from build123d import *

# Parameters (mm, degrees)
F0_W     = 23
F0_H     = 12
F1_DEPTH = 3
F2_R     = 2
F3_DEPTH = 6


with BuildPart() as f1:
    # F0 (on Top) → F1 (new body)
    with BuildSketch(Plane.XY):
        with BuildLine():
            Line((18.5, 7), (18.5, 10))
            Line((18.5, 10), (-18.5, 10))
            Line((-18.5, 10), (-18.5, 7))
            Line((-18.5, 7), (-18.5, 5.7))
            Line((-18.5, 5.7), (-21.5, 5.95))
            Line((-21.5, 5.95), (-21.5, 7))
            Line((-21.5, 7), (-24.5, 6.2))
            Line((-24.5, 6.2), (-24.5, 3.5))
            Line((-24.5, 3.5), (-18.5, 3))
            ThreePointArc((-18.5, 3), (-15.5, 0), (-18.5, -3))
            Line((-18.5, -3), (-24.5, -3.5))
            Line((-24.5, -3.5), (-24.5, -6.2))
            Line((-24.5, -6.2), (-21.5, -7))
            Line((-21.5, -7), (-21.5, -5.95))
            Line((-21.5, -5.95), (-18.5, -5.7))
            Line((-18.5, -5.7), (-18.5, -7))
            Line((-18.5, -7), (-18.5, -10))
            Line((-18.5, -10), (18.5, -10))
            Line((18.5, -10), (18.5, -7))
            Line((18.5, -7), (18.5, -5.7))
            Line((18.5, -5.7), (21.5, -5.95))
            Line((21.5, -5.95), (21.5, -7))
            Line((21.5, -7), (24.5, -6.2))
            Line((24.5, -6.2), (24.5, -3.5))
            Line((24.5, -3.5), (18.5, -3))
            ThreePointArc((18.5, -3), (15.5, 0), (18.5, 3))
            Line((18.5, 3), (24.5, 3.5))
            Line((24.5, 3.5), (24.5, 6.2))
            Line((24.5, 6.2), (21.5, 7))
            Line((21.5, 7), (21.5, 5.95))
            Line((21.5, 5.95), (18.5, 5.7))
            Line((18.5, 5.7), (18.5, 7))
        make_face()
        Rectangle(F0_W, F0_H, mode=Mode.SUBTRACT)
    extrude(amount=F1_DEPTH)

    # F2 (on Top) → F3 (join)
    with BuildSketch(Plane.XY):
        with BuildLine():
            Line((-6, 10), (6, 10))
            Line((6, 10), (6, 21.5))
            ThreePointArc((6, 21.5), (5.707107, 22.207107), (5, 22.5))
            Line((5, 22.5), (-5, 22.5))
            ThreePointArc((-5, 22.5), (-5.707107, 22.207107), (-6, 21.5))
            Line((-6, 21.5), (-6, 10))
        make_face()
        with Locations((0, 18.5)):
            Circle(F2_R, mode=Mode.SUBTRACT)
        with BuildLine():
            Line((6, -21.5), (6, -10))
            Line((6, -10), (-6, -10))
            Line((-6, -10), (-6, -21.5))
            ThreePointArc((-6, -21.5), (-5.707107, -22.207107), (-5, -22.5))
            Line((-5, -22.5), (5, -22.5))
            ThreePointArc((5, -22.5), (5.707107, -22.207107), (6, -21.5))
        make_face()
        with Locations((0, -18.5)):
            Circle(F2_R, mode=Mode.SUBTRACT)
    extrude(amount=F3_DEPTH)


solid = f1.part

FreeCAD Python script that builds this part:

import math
import FreeCAD as App
import Part
import Sketcher

doc = App.newDocument("Part")
body = doc.addObject("PartDesign::Body", "Body")

# Sketch on XY plane
sketch1 = body.newObject("Sketcher::SketchObject", "Sketch")
sketch1.AttachmentSupport = (doc.getObject("XY_Plane"), [""])
sketch1.MapMode = "FlatFace"
sketch1.addGeometry(Part.LineSegment(App.Vector(18.5, 10, 0), App.Vector(-18.5, 10, 0)), False)
sketch1.addGeometry(Part.LineSegment(App.Vector(-18.5, 10, 0), App.Vector(-18.5, 5.7, 0)), False)
sketch1.addGeometry(Part.LineSegment(App.Vector(-18.5, 5.7, 0), App.Vector(-21.5, 6, 0)), False)
sketch1.addGeometry(Part.LineSegment(App.Vector(-21.5, 6, 0), App.Vector(-21.5, 7, 0)), False)
sketch1.addGeometry(Part.LineSegment(App.Vector(-21.5, 7, 0), App.Vector(-24.5, 6.2, 0)), False)
sketch1.addGeometry(Part.LineSegment(App.Vector(-24.5, 6.2, 0), App.Vector(-24.5, 3.5, 0)), False)
sketch1.addGeometry(Part.LineSegment(App.Vector(-24.5, 3.5, 0), App.Vector(-18.5, 3, 0)), False)
sketch1.addGeometry(Part.ArcOfCircle(Part.Circle(App.Vector(-18.5, 0, 0), App.Vector(0, 0, 1), 3), math.radians(-90), math.radians(90)), False)
sketch1.addGeometry(Part.LineSegment(App.Vector(-18.5, -3, 0), App.Vector(-24.5, -3.5, 0)), False)
sketch1.addGeometry(Part.LineSegment(App.Vector(-24.5, -3.5, 0), App.Vector(-24.5, -6.2, 0)), False)
sketch1.addGeometry(Part.LineSegment(App.Vector(-24.5, -6.2, 0), App.Vector(-21.5, -7, 0)), False)
sketch1.addGeometry(Part.LineSegment(App.Vector(-21.5, -7, 0), App.Vector(-21.5, -6, 0)), False)
sketch1.addGeometry(Part.LineSegment(App.Vector(-21.5, -6, 0), App.Vector(-18.5, -5.7, 0)), False)
sketch1.addGeometry(Part.LineSegment(App.Vector(-18.5, -5.7, 0), App.Vector(-18.5, -10, 0)), False)
sketch1.addGeometry(Part.LineSegment(App.Vector(-18.5, -10, 0), App.Vector(18.5, -10, 0)), False)
sketch1.addGeometry(Part.LineSegment(App.Vector(18.5, -10, 0), App.Vector(18.5, -5.7, 0)), False)
sketch1.addGeometry(Part.LineSegment(App.Vector(18.5, -5.7, 0), App.Vector(21.5, -6, 0)), False)
sketch1.addGeometry(Part.LineSegment(App.Vector(21.5, -6, 0), App.Vector(21.5, -7, 0)), False)
sketch1.addGeometry(Part.LineSegment(App.Vector(21.5, -7, 0), App.Vector(24.5, -6.2, 0)), False)
sketch1.addGeometry(Part.LineSegment(App.Vector(24.5, -6.2, 0), App.Vector(24.5, -3.5, 0)), False)
sketch1.addGeometry(Part.LineSegment(App.Vector(24.5, -3.5, 0), App.Vector(18.5, -3, 0)), False)
sketch1.addGeometry(Part.ArcOfCircle(Part.Circle(App.Vector(18.5, 0, 0), App.Vector(0, 0, 1), 3), math.radians(90), math.radians(270)), False)
sketch1.addGeometry(Part.LineSegment(App.Vector(18.5, 3, 0), App.Vector(24.5, 3.5, 0)), False)
sketch1.addGeometry(Part.LineSegment(App.Vector(24.5, 3.5, 0), App.Vector(24.5, 6.2, 0)), False)
sketch1.addGeometry(Part.LineSegment(App.Vector(24.5, 6.2, 0), App.Vector(21.5, 7, 0)), False)
sketch1.addGeometry(Part.LineSegment(App.Vector(21.5, 7, 0), App.Vector(21.5, 6, 0)), False)
sketch1.addGeometry(Part.LineSegment(App.Vector(21.5, 6, 0), App.Vector(18.5, 5.7, 0)), False)
sketch1.addGeometry(Part.LineSegment(App.Vector(18.5, 5.7, 0), App.Vector(18.5, 10, 0)), False)
sketch1.addGeometry(Part.LineSegment(App.Vector(11.5, -6, 0), App.Vector(-11.5, -6, 0)), False)
sketch1.addGeometry(Part.LineSegment(App.Vector(-11.5, -6, 0), App.Vector(-11.5, 6, 0)), False)
sketch1.addGeometry(Part.LineSegment(App.Vector(-11.5, 6, 0), App.Vector(11.5, 6, 0)), False)
sketch1.addGeometry(Part.LineSegment(App.Vector(11.5, 6, 0), App.Vector(11.5, -6, 0)), False)
sketch1.addConstraint(Sketcher.Constraint("Coincident", 0, 2, 1, 1))
sketch1.addConstraint(Sketcher.Constraint("Coincident", 1, 2, 2, 1))
sketch1.addConstraint(Sketcher.Constraint("Coincident", 2, 2, 3, 1))
sketch1.addConstraint(Sketcher.Constraint("Coincident", 3, 2, 4, 1))
sketch1.addConstraint(Sketcher.Constraint("Coincident", 4, 2, 5, 1))
sketch1.addConstraint(Sketcher.Constraint("Coincident", 5, 2, 6, 1))
sketch1.addConstraint(Sketcher.Constraint("Coincident", 6, 2, 7, 2))
sketch1.addConstraint(Sketcher.Constraint("Coincident", 7, 1, 8, 1))
sketch1.addConstraint(Sketcher.Constraint("Coincident", 8, 2, 9, 1))
sketch1.addConstraint(Sketcher.Constraint("Coincident", 9, 2, 10, 1))
sketch1.addConstraint(Sketcher.Constraint("Coincident", 10, 2, 11, 1))
sketch1.addConstraint(Sketcher.Constraint("Coincident", 11, 2, 12, 1))
sketch1.addConstraint(Sketcher.Constraint("Coincident", 12, 2, 13, 1))
sketch1.addConstraint(Sketcher.Constraint("Coincident", 13, 2, 14, 1))
sketch1.addConstraint(Sketcher.Constraint("Coincident", 14, 2, 15, 1))
sketch1.addConstraint(Sketcher.Constraint("Coincident", 15, 2, 16, 1))
sketch1.addConstraint(Sketcher.Constraint("Coincident", 16, 2, 17, 1))
sketch1.addConstraint(Sketcher.Constraint("Coincident", 17, 2, 18, 1))
sketch1.addConstraint(Sketcher.Constraint("Coincident", 18, 2, 19, 1))
sketch1.addConstraint(Sketcher.Constraint("Coincident", 19, 2, 20, 1))
sketch1.addConstraint(Sketcher.Constraint("Coincident", 20, 2, 21, 2))
sketch1.addConstraint(Sketcher.Constraint("Coincident", 21, 1, 22, 1))
sketch1.addConstraint(Sketcher.Constraint("Coincident", 22, 2, 23, 1))
sketch1.addConstraint(Sketcher.Constraint("Coincident", 23, 2, 24, 1))
sketch1.addConstraint(Sketcher.Constraint("Coincident", 24, 2, 25, 1))
sketch1.addConstraint(Sketcher.Constraint("Coincident", 25, 2, 26, 1))
sketch1.addConstraint(Sketcher.Constraint("Coincident", 26, 2, 27, 1))
sketch1.addConstraint(Sketcher.Constraint("Coincident", 27, 2, 0, 1))
sketch1.addConstraint(Sketcher.Constraint("Coincident", 28, 2, 29, 1))
sketch1.addConstraint(Sketcher.Constraint("Coincident", 29, 2, 30, 1))
sketch1.addConstraint(Sketcher.Constraint("Coincident", 30, 2, 31, 1))
sketch1.addConstraint(Sketcher.Constraint("Coincident", 31, 2, 28, 1))
sketch1.addConstraint(Sketcher.Constraint("Horizontal", 0))
sketch1.addConstraint(Sketcher.Constraint("Vertical", 1))
sketch1.addConstraint(Sketcher.Constraint("Vertical", 3))
sketch1.addConstraint(Sketcher.Constraint("Vertical", 5))
sketch1.addConstraint(Sketcher.Constraint("Vertical", 9))
sketch1.addConstraint(Sketcher.Constraint("Vertical", 11))
sketch1.addConstraint(Sketcher.Constraint("Vertical", 13))
sketch1.addConstraint(Sketcher.Constraint("Horizontal", 14))
sketch1.addConstraint(Sketcher.Constraint("Vertical", 15))
sketch1.addConstraint(Sketcher.Constraint("Vertical", 17))
sketch1.addConstraint(Sketcher.Constraint("Vertical", 19))
sketch1.addConstraint(Sketcher.Constraint("Vertical", 23))
sketch1.addConstraint(Sketcher.Constraint("Vertical", 25))
sketch1.addConstraint(Sketcher.Constraint("Vertical", 27))
sketch1.addConstraint(Sketcher.Constraint("Horizontal", 28))
sketch1.addConstraint(Sketcher.Constraint("Vertical", 29))
sketch1.addConstraint(Sketcher.Constraint("Horizontal", 30))
sketch1.addConstraint(Sketcher.Constraint("Vertical", 31))
sketch1.addConstraint(Sketcher.Constraint("Equal", 7, 21))
sketch1.addConstraint(Sketcher.Constraint("Symmetric", 7, 3, 21, 3, -1, 1))
sketch1.addConstraint(Sketcher.Constraint("Symmetric", 0, 2, 14, 2, -1, 1))
sketch1.addConstraint(Sketcher.Constraint("Symmetric", 2, 2, 16, 2, -1, 1))
sketch1.addConstraint(Sketcher.Constraint("Symmetric", 4, 2, 18, 2, -1, 1))
sketch1.addConstraint(Sketcher.Constraint("Symmetric", 8, 2, 22, 2, -1, 1))
sketch1.addConstraint(Sketcher.Constraint("Symmetric", 10, 2, 24, 2, -1, 1))
sketch1.addConstraint(Sketcher.Constraint("Symmetric", 12, 2, 26, 2, -1, 1))
sketch1.addConstraint(Sketcher.Constraint("Symmetric", 28, 2, 30, 2, -1, 1))
sketch1.addConstraint(Sketcher.Constraint("Symmetric", 12, 2, 15, 2, -2))
sketch1.addConstraint(Sketcher.Constraint("Symmetric", 11, 2, 16, 2, -2))
sketch1.addConstraint(Sketcher.Constraint("Symmetric", 9, 2, 18, 2, -2))
sketch1.addConstraint(Sketcher.Constraint("Symmetric", 7, 1, 20, 2, -2))
sketch1.addConstraint(Sketcher.Constraint("Parallel", 2, 6))
sketch1.addConstraint(Sketcher.Constraint("Parallel", 8, 12))
sketch1.addConstraint(Sketcher.Constraint("Parallel", 6, 16))
sketch1.addConstraint(Sketcher.Constraint("Parallel", 4, 18))
sketch1.addConstraint(Sketcher.Constraint("Parallel", 16, 20))
sketch1.addConstraint(Sketcher.Constraint("Parallel", 12, 22))
sketch1.addConstraint(Sketcher.Constraint("Parallel", 10, 24))
sketch1.addConstraint(Sketcher.Constraint("Parallel", 22, 26))
sketch1.addConstraint(Sketcher.Constraint("Horizontal", 10, 2, 17, 2))
sketch1.addConstraint(Sketcher.Constraint("Horizontal", 5, 2, 22, 2))
sketch1.addConstraint(Sketcher.Constraint("Vertical", 7, 3, 0, 2))
sketch1.addConstraint(Sketcher.Constraint("Vertical", 1, 2, 6, 2))
sketch1.addConstraint(Sketcher.Constraint("Radius", 7, 3.0))
sketch1.addConstraint(Sketcher.Constraint("DistanceX", 0, 2, 0, 1, 37.0))
sketch1.addConstraint(Sketcher.Constraint("DistanceX", 28, 2, 28, 1, 23.0))
sketch1.addConstraint(Sketcher.Constraint("DistanceY", 29, 1, 29, 2, 12.0))
sketch1.addConstraint(Sketcher.Constraint("DistanceY", 1, 2, 1, 1, 4.3))
sketch1.addConstraint(Sketcher.Constraint("DistanceY", 5, 2, 5, 1, 2.7))
sketch1.addConstraint(Sketcher.Constraint("DistanceY", -1, 1, 0, 2, 10.0))
sketch1.addConstraint(Sketcher.Constraint("DistanceY", -1, 1, 3, 2, 7.0))
sketch1.addConstraint(Sketcher.Constraint("DistanceX", 2, 2, 1, 2, 3.0))
sketch1.addConstraint(Sketcher.Constraint("DistanceX", 4, 2, 2, 2, 3.0))
sketch1.addConstraint(Sketcher.Constraint("DistanceY", 8, 2, 5, 2, 7.0))
pad1 = body.newObject("PartDesign::Pad", "Pad")
pad1.Profile = sketch1
pad1.Length = 3

# Sketch on XY plane
sketch2 = body.newObject("Sketcher::SketchObject", "Sketch001")
sketch2.AttachmentSupport = (doc.getObject("XY_Plane"), [""])
sketch2.MapMode = "FlatFace"
sketch2.addGeometry(Part.LineSegment(App.Vector(-6, 10, 0), App.Vector(6, 10, 0)), False)
sketch2.addGeometry(Part.LineSegment(App.Vector(6, 10, 0), App.Vector(6, 21.5, 0)), False)
sketch2.addGeometry(Part.ArcOfCircle(Part.Circle(App.Vector(5, 21.5, 0), App.Vector(0, 0, 1), 1), math.radians(0), math.radians(90)), False)
sketch2.addGeometry(Part.LineSegment(App.Vector(5, 22.5, 0), App.Vector(-5, 22.5, 0)), False)
sketch2.addGeometry(Part.ArcOfCircle(Part.Circle(App.Vector(-5, 21.5, 0), App.Vector(0, 0, 1), 1), math.radians(90), math.radians(180)), False)
sketch2.addGeometry(Part.LineSegment(App.Vector(-6, 21.5, 0), App.Vector(-6, 10, 0)), False)
sketch2.addGeometry(Part.Circle(App.Vector(0, 18.5, 0), App.Vector(0, 0, 1), 2), False)
sketch2.addGeometry(Part.LineSegment(App.Vector(6, -21.5, 0), App.Vector(6, -10, 0)), False)
sketch2.addGeometry(Part.LineSegment(App.Vector(6, -10, 0), App.Vector(-6, -10, 0)), False)
sketch2.addGeometry(Part.LineSegment(App.Vector(-6, -10, 0), App.Vector(-6, -21.5, 0)), False)
sketch2.addGeometry(Part.ArcOfCircle(Part.Circle(App.Vector(-5, -21.5, 0), App.Vector(0, 0, 1), 1), math.radians(180), math.radians(270)), False)
sketch2.addGeometry(Part.LineSegment(App.Vector(-5, -22.5, 0), App.Vector(5, -22.5, 0)), False)
sketch2.addGeometry(Part.ArcOfCircle(Part.Circle(App.Vector(5, -21.5, 0), App.Vector(0, 0, 1), 1), math.radians(-90), math.radians(0)), False)
sketch2.addGeometry(Part.Circle(App.Vector(0, -18.5, 0), App.Vector(0, 0, 1), 2), False)
sketch2.addConstraint(Sketcher.Constraint("Coincident", 0, 2, 1, 1))
sketch2.addConstraint(Sketcher.Constraint("Tangent", 1, 2, 2, 1))
sketch2.addConstraint(Sketcher.Constraint("Tangent", 2, 2, 3, 1))
sketch2.addConstraint(Sketcher.Constraint("Tangent", 3, 2, 4, 1))
sketch2.addConstraint(Sketcher.Constraint("Tangent", 4, 2, 5, 1))
sketch2.addConstraint(Sketcher.Constraint("Coincident", 5, 2, 0, 1))
sketch2.addConstraint(Sketcher.Constraint("Coincident", 7, 2, 8, 1))
sketch2.addConstraint(Sketcher.Constraint("Coincident", 8, 2, 9, 1))
sketch2.addConstraint(Sketcher.Constraint("Tangent", 9, 2, 10, 1))
sketch2.addConstraint(Sketcher.Constraint("Tangent", 10, 2, 11, 1))
sketch2.addConstraint(Sketcher.Constraint("Tangent", 11, 2, 12, 1))
sketch2.addConstraint(Sketcher.Constraint("Tangent", 12, 2, 7, 1))
sketch2.addConstraint(Sketcher.Constraint("Horizontal", 0))
sketch2.addConstraint(Sketcher.Constraint("Vertical", 1))
sketch2.addConstraint(Sketcher.Constraint("Horizontal", 3))
sketch2.addConstraint(Sketcher.Constraint("Vertical", 5))
sketch2.addConstraint(Sketcher.Constraint("Vertical", 7))
sketch2.addConstraint(Sketcher.Constraint("Horizontal", 8))
sketch2.addConstraint(Sketcher.Constraint("Vertical", 9))
sketch2.addConstraint(Sketcher.Constraint("Horizontal", 11))
sketch2.addConstraint(Sketcher.Constraint("Equal", 2, 4))
sketch2.addConstraint(Sketcher.Constraint("Equal", 4, 10))
sketch2.addConstraint(Sketcher.Constraint("Equal", 10, 12))
sketch2.addConstraint(Sketcher.Constraint("Equal", 6, 13))
sketch2.addConstraint(Sketcher.Constraint("Symmetric", 2, 3, 10, 3, -1, 1))
sketch2.addConstraint(Sketcher.Constraint("Symmetric", 6, 3, 13, 3, -1, 1))
sketch2.addConstraint(Sketcher.Constraint("Symmetric", 5, 2, 7, 2, -1, 1))
sketch2.addConstraint(Sketcher.Constraint("PointOnObject", 6, 3, -2))
sketch2.addConstraint(Sketcher.Constraint("Vertical", 4, 3, 10, 3))
sketch2.addConstraint(Sketcher.Constraint("Diameter", 6, 4.0))
sketch2.addConstraint(Sketcher.Constraint("Radius", 2, 0.999999))
sketch2.addConstraint(Sketcher.Constraint("DistanceX", 0, 1, 0, 2, 12.0))
sketch2.addConstraint(Sketcher.Constraint("DistanceY", 1, 1, 1, 2, 11.5))
sketch2.addConstraint(Sketcher.Constraint("DistanceY", -1, 1, 0, 2, 10.0))
sketch2.addConstraint(Sketcher.Constraint("DistanceY", 6, 3, 2, 3, 3.000001))
pad2 = body.newObject("PartDesign::Pad", "Pad001")
pad2.Profile = sketch2
pad2.Length = 6

doc.recompute()
